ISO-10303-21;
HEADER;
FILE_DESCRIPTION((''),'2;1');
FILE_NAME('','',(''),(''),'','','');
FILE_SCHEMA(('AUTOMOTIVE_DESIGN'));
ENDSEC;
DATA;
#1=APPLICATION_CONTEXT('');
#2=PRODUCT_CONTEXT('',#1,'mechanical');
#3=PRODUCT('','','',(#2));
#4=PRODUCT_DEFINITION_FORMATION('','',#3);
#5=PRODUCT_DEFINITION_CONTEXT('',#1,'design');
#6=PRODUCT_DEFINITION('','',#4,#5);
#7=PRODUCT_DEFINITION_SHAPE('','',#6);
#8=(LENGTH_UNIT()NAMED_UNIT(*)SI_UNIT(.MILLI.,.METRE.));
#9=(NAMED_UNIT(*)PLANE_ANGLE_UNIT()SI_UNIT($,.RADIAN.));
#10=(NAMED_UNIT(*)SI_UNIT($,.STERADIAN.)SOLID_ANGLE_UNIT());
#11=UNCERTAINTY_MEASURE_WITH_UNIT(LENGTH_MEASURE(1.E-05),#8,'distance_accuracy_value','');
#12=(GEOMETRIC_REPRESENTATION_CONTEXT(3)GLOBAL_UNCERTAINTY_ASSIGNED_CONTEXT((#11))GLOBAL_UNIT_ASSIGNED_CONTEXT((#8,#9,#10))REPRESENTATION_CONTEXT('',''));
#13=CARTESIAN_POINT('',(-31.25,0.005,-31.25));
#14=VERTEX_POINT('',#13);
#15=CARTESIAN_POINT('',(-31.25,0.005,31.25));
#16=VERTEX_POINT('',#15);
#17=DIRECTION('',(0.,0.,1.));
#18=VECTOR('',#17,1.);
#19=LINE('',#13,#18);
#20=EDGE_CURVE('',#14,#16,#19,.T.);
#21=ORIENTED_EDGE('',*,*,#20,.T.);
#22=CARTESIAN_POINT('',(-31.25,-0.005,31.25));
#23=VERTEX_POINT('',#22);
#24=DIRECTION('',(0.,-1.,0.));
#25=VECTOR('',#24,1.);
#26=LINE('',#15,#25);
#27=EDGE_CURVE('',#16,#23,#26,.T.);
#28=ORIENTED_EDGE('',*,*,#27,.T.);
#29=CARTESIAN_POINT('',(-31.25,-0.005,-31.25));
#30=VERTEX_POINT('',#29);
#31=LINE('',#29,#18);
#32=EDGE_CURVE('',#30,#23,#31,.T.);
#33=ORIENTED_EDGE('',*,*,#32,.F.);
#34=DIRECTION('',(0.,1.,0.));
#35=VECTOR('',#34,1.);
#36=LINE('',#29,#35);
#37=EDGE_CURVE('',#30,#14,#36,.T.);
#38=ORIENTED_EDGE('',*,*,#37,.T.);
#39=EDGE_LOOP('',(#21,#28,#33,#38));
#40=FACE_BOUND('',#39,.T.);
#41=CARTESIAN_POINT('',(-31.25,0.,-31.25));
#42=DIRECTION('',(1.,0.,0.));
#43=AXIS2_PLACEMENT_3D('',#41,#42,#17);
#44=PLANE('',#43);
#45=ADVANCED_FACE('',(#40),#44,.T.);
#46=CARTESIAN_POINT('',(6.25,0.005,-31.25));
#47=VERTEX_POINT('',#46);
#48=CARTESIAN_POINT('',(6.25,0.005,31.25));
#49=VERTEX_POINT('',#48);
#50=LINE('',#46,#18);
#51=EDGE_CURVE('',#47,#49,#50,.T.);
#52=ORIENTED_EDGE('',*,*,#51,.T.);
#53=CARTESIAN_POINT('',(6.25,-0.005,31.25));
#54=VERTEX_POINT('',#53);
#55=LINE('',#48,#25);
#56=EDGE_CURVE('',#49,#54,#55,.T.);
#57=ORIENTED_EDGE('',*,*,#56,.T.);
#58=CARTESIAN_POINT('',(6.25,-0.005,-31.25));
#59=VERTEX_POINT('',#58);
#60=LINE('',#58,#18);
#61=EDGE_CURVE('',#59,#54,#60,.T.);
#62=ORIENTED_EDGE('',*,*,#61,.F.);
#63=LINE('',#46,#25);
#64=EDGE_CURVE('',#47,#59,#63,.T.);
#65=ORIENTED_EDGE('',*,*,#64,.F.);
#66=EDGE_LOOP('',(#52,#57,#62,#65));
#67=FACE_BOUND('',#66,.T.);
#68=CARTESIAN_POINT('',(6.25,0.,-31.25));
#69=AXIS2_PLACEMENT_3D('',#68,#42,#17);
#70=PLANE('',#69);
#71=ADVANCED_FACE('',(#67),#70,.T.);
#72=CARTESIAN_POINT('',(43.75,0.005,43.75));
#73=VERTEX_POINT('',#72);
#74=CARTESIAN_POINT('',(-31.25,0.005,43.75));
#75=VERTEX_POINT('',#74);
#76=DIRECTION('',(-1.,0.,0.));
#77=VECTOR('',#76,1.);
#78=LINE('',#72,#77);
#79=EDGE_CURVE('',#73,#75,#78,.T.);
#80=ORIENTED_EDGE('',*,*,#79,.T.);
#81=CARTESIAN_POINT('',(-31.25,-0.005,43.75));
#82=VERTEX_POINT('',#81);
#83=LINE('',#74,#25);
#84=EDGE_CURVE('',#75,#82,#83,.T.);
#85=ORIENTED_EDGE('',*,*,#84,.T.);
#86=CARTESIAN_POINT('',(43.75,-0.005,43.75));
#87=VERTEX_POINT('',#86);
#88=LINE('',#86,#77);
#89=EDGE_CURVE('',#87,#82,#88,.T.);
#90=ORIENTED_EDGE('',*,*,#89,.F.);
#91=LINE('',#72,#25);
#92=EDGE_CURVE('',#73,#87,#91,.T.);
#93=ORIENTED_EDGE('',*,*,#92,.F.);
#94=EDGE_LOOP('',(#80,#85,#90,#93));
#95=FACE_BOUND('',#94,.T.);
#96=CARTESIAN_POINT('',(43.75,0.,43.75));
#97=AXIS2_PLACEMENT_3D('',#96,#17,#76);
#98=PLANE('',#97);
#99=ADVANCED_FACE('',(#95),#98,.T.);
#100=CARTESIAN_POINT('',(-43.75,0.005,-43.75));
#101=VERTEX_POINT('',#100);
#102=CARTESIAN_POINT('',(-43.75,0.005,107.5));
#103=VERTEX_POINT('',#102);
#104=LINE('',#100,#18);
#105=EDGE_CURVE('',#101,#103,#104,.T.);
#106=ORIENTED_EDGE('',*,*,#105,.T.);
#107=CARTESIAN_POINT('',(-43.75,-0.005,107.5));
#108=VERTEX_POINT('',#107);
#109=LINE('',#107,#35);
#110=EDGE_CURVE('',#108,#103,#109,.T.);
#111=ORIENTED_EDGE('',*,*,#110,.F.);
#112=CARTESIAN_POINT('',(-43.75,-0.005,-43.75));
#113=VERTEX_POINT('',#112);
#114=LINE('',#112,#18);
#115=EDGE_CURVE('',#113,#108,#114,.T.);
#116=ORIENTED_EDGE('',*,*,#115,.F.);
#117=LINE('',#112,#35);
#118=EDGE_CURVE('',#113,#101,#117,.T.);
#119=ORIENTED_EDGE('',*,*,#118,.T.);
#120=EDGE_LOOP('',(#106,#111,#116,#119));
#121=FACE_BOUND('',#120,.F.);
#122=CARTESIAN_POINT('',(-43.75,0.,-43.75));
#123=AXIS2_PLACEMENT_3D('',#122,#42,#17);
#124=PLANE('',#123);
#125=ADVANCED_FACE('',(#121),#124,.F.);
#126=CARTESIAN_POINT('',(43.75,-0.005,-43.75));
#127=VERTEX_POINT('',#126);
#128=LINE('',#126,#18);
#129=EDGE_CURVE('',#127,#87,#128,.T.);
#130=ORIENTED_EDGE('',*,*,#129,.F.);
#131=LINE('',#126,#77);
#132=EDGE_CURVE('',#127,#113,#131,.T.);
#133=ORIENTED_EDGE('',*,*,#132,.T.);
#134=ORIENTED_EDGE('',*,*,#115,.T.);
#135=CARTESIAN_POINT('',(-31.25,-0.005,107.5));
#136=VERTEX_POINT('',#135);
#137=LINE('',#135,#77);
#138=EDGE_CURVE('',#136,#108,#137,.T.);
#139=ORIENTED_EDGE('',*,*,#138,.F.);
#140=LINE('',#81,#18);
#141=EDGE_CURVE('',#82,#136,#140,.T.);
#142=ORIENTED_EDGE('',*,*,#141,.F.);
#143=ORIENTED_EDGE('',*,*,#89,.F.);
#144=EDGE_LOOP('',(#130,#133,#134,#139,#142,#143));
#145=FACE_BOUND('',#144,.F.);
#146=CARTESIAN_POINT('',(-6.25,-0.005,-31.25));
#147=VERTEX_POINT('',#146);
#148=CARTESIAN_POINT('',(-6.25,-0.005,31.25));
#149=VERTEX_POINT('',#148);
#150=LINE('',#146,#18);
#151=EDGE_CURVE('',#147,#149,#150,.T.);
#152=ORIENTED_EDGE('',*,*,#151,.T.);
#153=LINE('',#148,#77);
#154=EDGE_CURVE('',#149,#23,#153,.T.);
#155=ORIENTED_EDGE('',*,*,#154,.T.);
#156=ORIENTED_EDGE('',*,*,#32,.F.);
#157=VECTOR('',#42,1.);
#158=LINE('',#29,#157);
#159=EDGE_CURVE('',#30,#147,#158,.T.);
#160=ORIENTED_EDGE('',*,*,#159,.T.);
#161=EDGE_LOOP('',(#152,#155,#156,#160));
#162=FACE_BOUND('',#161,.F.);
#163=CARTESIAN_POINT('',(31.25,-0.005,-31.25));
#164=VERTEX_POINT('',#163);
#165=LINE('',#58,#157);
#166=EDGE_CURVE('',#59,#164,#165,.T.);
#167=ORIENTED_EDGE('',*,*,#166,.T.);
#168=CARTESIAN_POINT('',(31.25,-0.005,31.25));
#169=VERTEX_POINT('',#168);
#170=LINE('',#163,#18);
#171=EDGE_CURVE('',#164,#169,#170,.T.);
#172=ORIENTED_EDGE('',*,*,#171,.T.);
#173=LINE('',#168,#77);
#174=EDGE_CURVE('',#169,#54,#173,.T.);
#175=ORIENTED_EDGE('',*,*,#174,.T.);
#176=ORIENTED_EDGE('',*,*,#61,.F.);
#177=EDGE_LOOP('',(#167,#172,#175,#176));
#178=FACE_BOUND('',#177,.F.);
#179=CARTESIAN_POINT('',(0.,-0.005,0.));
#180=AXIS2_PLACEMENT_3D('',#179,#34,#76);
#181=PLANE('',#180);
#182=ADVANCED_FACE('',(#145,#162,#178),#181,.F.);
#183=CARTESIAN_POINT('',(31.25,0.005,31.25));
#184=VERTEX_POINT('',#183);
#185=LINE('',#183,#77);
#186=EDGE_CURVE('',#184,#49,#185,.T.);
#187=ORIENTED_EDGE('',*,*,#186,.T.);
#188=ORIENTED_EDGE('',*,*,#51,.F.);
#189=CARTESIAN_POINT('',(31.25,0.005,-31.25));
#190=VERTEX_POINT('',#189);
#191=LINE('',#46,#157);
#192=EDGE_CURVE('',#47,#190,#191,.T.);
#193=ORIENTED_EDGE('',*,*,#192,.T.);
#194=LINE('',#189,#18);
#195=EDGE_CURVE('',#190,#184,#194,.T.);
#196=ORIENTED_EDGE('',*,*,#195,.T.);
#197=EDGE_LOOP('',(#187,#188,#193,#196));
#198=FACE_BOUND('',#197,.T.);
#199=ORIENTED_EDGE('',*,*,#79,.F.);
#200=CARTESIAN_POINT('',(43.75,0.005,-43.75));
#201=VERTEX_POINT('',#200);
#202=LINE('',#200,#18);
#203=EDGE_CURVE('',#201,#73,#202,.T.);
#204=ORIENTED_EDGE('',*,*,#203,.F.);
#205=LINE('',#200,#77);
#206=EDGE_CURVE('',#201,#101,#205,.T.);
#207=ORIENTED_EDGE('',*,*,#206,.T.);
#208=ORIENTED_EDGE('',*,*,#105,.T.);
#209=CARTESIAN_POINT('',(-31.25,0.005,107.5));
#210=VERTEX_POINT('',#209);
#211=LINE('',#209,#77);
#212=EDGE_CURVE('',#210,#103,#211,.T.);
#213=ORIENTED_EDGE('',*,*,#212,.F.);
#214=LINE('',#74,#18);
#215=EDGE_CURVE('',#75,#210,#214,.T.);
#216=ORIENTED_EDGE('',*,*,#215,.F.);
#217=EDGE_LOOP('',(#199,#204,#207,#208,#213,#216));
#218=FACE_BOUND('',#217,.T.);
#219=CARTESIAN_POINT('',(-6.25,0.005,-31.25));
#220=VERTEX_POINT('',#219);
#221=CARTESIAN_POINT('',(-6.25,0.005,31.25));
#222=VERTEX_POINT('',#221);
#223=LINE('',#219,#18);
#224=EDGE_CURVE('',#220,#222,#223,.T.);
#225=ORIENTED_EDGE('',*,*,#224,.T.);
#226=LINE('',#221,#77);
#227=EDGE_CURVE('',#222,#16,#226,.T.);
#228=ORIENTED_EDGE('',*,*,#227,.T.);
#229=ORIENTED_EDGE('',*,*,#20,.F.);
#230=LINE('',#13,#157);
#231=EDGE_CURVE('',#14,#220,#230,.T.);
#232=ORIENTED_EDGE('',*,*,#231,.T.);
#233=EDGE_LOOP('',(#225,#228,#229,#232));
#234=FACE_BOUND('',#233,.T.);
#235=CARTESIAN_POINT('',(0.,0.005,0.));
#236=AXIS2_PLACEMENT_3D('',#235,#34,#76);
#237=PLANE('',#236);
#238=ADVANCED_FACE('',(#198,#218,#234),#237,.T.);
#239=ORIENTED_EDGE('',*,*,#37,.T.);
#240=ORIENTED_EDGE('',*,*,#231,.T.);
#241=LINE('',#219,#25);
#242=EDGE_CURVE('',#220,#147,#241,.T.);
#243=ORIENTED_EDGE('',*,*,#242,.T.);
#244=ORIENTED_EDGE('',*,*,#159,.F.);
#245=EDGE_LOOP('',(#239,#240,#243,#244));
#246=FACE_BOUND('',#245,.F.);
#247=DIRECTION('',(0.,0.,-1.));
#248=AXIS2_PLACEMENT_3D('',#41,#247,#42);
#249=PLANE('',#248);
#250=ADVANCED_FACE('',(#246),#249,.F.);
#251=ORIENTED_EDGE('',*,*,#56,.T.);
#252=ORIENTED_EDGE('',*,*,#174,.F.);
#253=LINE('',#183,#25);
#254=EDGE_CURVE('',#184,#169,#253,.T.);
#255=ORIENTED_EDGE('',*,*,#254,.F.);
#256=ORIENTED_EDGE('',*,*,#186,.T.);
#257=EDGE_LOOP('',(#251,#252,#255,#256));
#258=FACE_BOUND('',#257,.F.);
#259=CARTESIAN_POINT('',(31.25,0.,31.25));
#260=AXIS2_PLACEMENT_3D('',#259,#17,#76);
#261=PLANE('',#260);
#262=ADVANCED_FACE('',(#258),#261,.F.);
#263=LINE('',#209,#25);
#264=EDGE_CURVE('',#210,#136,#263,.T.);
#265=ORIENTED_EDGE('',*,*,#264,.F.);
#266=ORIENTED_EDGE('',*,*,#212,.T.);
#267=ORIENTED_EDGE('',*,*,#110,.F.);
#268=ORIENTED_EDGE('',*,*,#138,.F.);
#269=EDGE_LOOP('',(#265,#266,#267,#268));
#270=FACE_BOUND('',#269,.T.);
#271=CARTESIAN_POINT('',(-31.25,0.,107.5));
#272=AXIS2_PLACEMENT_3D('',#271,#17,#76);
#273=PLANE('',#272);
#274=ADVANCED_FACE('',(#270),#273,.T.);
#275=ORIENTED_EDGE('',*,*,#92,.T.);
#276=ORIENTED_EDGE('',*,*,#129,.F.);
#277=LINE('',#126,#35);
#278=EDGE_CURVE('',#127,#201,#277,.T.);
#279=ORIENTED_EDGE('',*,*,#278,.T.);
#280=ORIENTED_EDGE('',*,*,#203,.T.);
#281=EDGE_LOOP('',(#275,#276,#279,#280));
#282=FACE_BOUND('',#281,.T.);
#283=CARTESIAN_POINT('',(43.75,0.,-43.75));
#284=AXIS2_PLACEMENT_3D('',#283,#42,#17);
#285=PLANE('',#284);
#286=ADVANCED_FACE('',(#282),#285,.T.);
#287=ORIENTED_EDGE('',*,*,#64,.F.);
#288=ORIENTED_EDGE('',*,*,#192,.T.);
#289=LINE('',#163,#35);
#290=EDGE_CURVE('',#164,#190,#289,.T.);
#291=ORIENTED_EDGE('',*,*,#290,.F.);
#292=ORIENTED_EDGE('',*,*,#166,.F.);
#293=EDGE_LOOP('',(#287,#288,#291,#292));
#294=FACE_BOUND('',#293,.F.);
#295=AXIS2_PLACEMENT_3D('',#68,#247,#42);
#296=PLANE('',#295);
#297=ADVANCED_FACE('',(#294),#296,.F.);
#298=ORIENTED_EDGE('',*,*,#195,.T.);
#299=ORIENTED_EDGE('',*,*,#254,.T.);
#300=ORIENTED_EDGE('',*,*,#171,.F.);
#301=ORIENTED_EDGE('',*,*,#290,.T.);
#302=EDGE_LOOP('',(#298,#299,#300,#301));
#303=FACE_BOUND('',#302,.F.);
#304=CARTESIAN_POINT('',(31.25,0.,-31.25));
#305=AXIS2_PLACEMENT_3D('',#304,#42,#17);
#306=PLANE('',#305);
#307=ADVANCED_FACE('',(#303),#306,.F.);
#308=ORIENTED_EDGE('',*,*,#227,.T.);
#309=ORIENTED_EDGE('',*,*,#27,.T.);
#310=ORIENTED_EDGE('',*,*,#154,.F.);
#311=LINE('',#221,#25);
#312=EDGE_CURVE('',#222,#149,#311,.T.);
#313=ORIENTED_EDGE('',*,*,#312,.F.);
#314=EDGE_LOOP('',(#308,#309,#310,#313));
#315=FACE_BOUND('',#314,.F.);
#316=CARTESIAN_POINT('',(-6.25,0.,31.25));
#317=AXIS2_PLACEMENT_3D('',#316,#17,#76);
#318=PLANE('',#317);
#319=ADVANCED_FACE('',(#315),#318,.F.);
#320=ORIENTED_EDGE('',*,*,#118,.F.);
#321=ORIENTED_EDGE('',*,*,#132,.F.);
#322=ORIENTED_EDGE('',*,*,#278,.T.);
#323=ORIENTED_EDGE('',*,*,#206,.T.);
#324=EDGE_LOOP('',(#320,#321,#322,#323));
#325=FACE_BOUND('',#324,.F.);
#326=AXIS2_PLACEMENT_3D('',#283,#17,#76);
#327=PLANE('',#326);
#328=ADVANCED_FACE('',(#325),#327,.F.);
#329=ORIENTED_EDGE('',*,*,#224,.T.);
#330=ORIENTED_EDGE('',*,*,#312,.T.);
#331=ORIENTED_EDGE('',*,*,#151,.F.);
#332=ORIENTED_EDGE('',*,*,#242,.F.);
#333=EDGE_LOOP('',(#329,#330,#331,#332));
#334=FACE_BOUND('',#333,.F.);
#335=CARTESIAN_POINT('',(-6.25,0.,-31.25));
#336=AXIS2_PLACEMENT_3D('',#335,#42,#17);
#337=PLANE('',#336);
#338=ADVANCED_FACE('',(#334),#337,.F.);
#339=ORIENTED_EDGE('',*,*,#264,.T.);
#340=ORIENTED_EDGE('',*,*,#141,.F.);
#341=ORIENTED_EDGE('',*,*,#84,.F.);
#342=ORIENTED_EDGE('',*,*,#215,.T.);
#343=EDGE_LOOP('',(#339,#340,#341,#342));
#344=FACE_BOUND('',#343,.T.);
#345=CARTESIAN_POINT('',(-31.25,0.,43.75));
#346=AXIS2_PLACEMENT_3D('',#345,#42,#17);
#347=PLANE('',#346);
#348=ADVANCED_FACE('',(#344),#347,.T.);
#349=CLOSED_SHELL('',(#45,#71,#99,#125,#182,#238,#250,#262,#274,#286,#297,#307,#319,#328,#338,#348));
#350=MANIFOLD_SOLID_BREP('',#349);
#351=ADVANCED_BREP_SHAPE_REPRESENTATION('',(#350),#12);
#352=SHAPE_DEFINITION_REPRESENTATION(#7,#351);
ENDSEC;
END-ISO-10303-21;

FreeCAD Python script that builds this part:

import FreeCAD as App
import Part
import Sketcher

V = App.Vector

doc = App.newDocument("Part")
body = doc.addObject("PartDesign::Body", "Body")

sketch1 = body.newObject("Sketcher::SketchObject", "Sketch")
sketch1.AttachmentSupport = (doc.getObject("XZ_Plane"), [""])
sketch1.MapMode = "FlatFace"
sketch1.addGeometry([
    Part.LineSegment(V(44, 44, 0), V(44, -44, 0)),
    Part.LineSegment(V(44, -44, 0), V(-44, -44, 0)),
    Part.LineSegment(V(-44, -44, 0), V(-44, 108, 0)),
    Part.LineSegment(V(-44, 108, 0), V(-31, 108, 0)),
    Part.LineSegment(V(-31, 108, 0), V(-31, 44, 0)),
    Part.LineSegment(V(-31, 44, 0), V(44, 44, 0)),
    Part.LineSegment(V(6, -31, 0), V(31, -31, 0)),
    Part.LineSegment(V(31, -31, 0), V(31, 31, 0)),
    Part.LineSegment(V(31, 31, 0), V(6, 31, 0)),
    Part.LineSegment(V(6, 31, 0), V(6, -31, 0)),
    Part.LineSegment(V(-31, 31, 0), V(-31, -31, 0)),
    Part.LineSegment(V(-31, -31, 0), V(-6, -31, 0)),
    Part.LineSegment(V(-6, -31, 0), V(-6, 31, 0)),
    Part.LineSegment(V(-6, 31, 0), V(-31, 31, 0)),
], False)
sketch1.addConstraint([
    Sketcher.Constraint("Coincident", 0, 2, 1, 1),
    Sketcher.Constraint("Coincident", 1, 2, 2, 1),
    Sketcher.Constraint("Coincident", 2, 2, 3, 1),
    Sketcher.Constraint("Coincident", 3, 2, 4, 1),
    Sketcher.Constraint("Coincident", 4, 2, 5, 1),
    Sketcher.Constraint("Coincident", 5, 2, 0, 1),
    Sketcher.Constraint("Coincident", 6, 2, 7, 1),
    Sketcher.Constraint("Coincident", 7, 2, 8, 1),
    Sketcher.Constraint("Coincident", 8, 2, 9, 1),
    Sketcher.Constraint("Coincident", 9, 2, 6, 1),
    Sketcher.Constraint("Coincident", 10, 2, 11, 1),
    Sketcher.Constraint("Coincident", 11, 2, 12, 1),
    Sketcher.Constraint("Coincident", 12, 2, 13, 1),
    Sketcher.Constraint("Coincident", 13, 2, 10, 1),
    Sketcher.Constraint("Vertical", 0),
    Sketcher.Constraint("Horizontal", 1),
    Sketcher.Constraint("Vertical", 2),
    Sketcher.Constraint("Horizontal", 3),
    Sketcher.Constraint("Vertical", 4),
    Sketcher.Constraint("Horizontal", 5),
    Sketcher.Constraint("Horizontal", 6),
    Sketcher.Constraint("Vertical", 7),
    Sketcher.Constraint("Horizontal", 8),
    Sketcher.Constraint("Vertical", 9),
    Sketcher.Constraint("Vertical", 10),
    Sketcher.Constraint("Horizontal", 11),
    Sketcher.Constraint("Vertical", 12),
    Sketcher.Constraint("Horizontal", 13),
    Sketcher.Constraint("Symmetric", 1, 2, 5, 2, -1, 1),
    Sketcher.Constraint("Symmetric", 7, 2, 10, 2, -1, 1),
    Sketcher.Constraint("Symmetric", 9, 2, 12, 2, -1, 1),
    Sketcher.Constraint("Horizontal", 9, 2, 10, 2),
    Sketcher.Constraint("Vertical", 4, 2, 10, 2),
    Sketcher.Constraint("Equal", 1, 0),
    Sketcher.Constraint("DistanceX", 6, 1, 6, 2, 25.0),
    Sketcher.Constraint("DistanceX", 3, 1, 3, 2, 12.5),
    Sketcher.Constraint("DistanceY", -1, 1, 2, 2, 107.5),
    Sketcher.Constraint("DistanceY", 0, 2, 6, 2, 12.5),
    Sketcher.Constraint("DistanceX", 11, 2, 9, 2, 12.5),
])
pad1 = body.newObject("PartDesign::Pad", "Pad")
pad1.Profile = sketch1
pad1.Length = 0.01
pad1.Midplane = True

doc.recompute()
